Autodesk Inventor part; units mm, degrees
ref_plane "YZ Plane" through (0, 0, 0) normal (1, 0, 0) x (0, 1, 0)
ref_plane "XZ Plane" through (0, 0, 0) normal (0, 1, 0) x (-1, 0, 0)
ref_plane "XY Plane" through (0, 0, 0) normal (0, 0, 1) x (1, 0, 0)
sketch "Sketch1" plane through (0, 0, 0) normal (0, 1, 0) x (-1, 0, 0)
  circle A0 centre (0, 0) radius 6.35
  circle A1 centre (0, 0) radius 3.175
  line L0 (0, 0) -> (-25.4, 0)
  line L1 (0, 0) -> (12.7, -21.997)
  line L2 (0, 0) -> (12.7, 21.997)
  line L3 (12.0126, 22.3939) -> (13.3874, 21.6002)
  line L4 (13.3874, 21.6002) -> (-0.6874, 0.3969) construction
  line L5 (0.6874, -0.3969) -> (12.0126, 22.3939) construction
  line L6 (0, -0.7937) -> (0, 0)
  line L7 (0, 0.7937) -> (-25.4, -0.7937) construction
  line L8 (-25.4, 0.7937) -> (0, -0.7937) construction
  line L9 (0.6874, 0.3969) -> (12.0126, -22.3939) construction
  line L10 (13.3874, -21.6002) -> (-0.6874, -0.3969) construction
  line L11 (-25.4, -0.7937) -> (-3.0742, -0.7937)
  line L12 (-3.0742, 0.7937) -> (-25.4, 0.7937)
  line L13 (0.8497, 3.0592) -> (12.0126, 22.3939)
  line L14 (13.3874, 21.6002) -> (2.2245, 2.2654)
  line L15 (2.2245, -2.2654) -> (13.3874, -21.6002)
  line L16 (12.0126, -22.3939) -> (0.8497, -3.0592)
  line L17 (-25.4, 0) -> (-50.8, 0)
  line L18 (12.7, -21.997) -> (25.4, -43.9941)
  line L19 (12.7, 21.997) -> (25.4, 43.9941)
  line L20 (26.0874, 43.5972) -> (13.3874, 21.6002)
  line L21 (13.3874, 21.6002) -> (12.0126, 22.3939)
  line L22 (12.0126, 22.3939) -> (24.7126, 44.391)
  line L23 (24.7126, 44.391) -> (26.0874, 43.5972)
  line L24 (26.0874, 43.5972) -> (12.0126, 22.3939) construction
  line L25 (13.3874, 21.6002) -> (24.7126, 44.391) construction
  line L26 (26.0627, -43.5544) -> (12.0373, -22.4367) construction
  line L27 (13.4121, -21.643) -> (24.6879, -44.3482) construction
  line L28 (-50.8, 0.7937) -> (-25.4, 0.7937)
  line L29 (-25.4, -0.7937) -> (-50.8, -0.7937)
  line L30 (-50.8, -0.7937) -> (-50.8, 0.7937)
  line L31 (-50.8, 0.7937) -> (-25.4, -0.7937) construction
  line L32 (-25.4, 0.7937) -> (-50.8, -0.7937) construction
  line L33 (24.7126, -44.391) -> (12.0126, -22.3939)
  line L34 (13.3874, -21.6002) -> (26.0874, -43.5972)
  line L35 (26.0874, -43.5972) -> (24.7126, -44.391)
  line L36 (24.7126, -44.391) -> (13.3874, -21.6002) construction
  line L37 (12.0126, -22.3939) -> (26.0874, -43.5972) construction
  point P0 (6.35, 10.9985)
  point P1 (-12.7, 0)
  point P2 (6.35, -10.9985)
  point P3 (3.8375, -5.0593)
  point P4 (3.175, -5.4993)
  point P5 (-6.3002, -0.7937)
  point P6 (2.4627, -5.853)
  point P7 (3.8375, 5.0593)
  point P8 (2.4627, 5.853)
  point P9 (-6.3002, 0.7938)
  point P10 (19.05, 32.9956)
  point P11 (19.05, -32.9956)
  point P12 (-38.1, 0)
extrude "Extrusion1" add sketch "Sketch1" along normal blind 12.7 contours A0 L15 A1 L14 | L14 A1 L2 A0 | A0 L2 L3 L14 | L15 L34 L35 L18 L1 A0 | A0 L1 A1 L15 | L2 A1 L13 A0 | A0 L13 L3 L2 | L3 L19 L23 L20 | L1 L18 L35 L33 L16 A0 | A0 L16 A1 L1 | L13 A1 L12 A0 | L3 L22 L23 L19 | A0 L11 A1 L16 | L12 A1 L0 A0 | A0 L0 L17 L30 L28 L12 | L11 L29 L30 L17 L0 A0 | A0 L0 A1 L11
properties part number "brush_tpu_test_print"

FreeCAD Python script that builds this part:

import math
import FreeCAD as App
import Part
import Sketcher
from FreeCAD import Vector
Q = App.Units.Quantity

doc = App.newDocument("Part")
body = doc.addObject("PartDesign::Body", "Body")

# Sketch on XZ plane
sketch1 = body.newObject("Sketcher::SketchObject", "Sketch")
sketch1.AttachmentSupport = (doc.getObject("XZ_Plane"), [""])
sketch1.MapMode = "FlatFace"
sketch1.addGeometry([
    Part.ArcOfCircle(Part.Circle(Vector(0, 0, 0), Vector(0, 0, 1), 6.3), math.radians(127), math.radians(233)),  # 0
    Part.LineSegment(Vector(-3.8, 5.1, 0), Vector(-13.4, 21.6, 0)),  # 1
    Part.LineSegment(Vector(-13.4, 21.6, 0), Vector(-26.1, 43.6, 0)),  # 2
    Part.LineSegment(Vector(-26.1, 43.6, 0), Vector(-24.7, 44.4, 0)),  # 3
    Part.LineSegment(Vector(-24.7, 44.4, 0), Vector(-12, 22.4, 0)),  # 4
    Part.LineSegment(Vector(-12, 22.4, 0), Vector(-2.5, 5.9, 0)),  # 5
    Part.ArcOfCircle(Part.Circle(Vector(0, 0, 0), Vector(0, 0, 1), 6.3), math.radians(7), math.radians(113)),  # 6
    Part.LineSegment(Vector(6.3, 0.8, 0), Vector(50.8, 0.8, 0)),  # 7
    Part.LineSegment(Vector(50.8, 0.8, 0), Vector(50.8, -0.8, 0)),  # 8
    Part.LineSegment(Vector(50.8, -0.8, 0), Vector(6.3, -0.8, 0)),  # 9
    Part.ArcOfCircle(Part.Circle(Vector(0, 0, 0), Vector(0, 0, 1), 6.3), math.radians(-113), math.radians(-7)),  # 10
    Part.LineSegment(Vector(-2.5, -5.9, 0), Vector(-12, -22.4, 0)),  # 11
    Part.LineSegment(Vector(-12, -22.4, 0), Vector(-24.7, -44.4, 0)),  # 12
    Part.LineSegment(Vector(-24.7, -44.4, 0), Vector(-26.1, -43.6, 0)),  # 13
    Part.LineSegment(Vector(-26.1, -43.6, 0), Vector(-13.4, -21.6, 0)),  # 14
    Part.LineSegment(Vector(-13.4, -21.6, 0), Vector(-3.8, -5.1, 0)),  # 15
    Part.Circle(Vector(0, 0, 0), Vector(0, 0, 1), 3.2),  # 16
], False)
sketch1.addConstraint([
    Sketcher.Constraint("Coincident", 0, 1, 1, 1),
    Sketcher.Constraint("Coincident", 1, 2, 2, 1),
    Sketcher.Constraint("Coincident", 2, 2, 3, 1),
    Sketcher.Constraint("Coincident", 3, 2, 4, 1),
    Sketcher.Constraint("Coincident", 4, 2, 5, 1),
    Sketcher.Constraint("Coincident", 5, 2, 6, 2),
    Sketcher.Constraint("Coincident", 6, 1, 7, 1),
    Sketcher.Constraint("Coincident", 7, 2, 8, 1),
    Sketcher.Constraint("Coincident", 8, 2, 9, 1),
    Sketcher.Constraint("Coincident", 9, 2, 10, 2),
    Sketcher.Constraint("Coincident", 10, 1, 11, 1),
    Sketcher.Constraint("Coincident", 11, 2, 12, 1),
    Sketcher.Constraint("Coincident", 12, 2, 13, 1),
    Sketcher.Constraint("Coincident", 13, 2, 14, 1),
    Sketcher.Constraint("Coincident", 14, 2, 15, 1),
    Sketcher.Constraint("Coincident", 15, 2, 0, 2),
    Sketcher.Constraint("Horizontal", 7),
    Sketcher.Constraint("Vertical", 8),
    Sketcher.Constraint("Horizontal", 9),
    Sketcher.Constraint("Coincident", 0, 3, -1, 1),
    Sketcher.Constraint("Coincident", 6, 3, -1, 1),
    Sketcher.Constraint("Coincident", 10, 3, -1, 1),
    Sketcher.Constraint("Coincident", 16, 3, -1, 1),
    Sketcher.Constraint("Equal", 0, 6),
    Sketcher.Constraint("Equal", 6, 10),
    Sketcher.Constraint("Symmetric", 4, 2, 11, 2, -1),
    Sketcher.Constraint("Symmetric", 3, 2, 12, 2, -1),
    Sketcher.Constraint("Symmetric", 2, 2, 13, 2, -1),
    Sketcher.Constraint("Symmetric", 1, 2, 14, 2, -1),
    Sketcher.Constraint("Parallel", 1, 2),
    Sketcher.Constraint("Perpendicular", 2, 3),
    Sketcher.Constraint("Perpendicular", 3, 4),
    Sketcher.Constraint("Parallel", 4, 5),
    Sketcher.Constraint("Parallel", 11, 12),
    Sketcher.Constraint("Parallel", 14, 15),
    Sketcher.Constraint("Vertical", 6, 1, 9, 2),
    Sketcher.Constraint("Equal", 2, 4),
    Sketcher.Constraint("Equal", 1, 5),
    Sketcher.Constraint("Diameter", 16, Q("0.25 in")),
    Sketcher.Constraint("Radius", 0, Q("0.25 in")),
    Sketcher.Constraint("Distance", 2, Q("1 in")),
    Sketcher.Constraint("DistanceX", -1, 1, 7, 2, Q("2 in")),
    Sketcher.Constraint("Angle", 1, Q("120 deg")),
    Sketcher.Constraint("DistanceY", 8, 2, 8, 1, Q("0.0625 in")),
    Sketcher.Constraint("Distance", 3, Q("0.0625 in")),
    Sketcher.Constraint("DistanceY", 13, 2, 10, 1, Q("1.486 in")),
])
pad1 = body.newObject("PartDesign::Pad", "Pad")
pad1.Profile = sketch1
pad1.Length = Q("0.5 in")
pad1.Reversed = True

doc.recompute()
